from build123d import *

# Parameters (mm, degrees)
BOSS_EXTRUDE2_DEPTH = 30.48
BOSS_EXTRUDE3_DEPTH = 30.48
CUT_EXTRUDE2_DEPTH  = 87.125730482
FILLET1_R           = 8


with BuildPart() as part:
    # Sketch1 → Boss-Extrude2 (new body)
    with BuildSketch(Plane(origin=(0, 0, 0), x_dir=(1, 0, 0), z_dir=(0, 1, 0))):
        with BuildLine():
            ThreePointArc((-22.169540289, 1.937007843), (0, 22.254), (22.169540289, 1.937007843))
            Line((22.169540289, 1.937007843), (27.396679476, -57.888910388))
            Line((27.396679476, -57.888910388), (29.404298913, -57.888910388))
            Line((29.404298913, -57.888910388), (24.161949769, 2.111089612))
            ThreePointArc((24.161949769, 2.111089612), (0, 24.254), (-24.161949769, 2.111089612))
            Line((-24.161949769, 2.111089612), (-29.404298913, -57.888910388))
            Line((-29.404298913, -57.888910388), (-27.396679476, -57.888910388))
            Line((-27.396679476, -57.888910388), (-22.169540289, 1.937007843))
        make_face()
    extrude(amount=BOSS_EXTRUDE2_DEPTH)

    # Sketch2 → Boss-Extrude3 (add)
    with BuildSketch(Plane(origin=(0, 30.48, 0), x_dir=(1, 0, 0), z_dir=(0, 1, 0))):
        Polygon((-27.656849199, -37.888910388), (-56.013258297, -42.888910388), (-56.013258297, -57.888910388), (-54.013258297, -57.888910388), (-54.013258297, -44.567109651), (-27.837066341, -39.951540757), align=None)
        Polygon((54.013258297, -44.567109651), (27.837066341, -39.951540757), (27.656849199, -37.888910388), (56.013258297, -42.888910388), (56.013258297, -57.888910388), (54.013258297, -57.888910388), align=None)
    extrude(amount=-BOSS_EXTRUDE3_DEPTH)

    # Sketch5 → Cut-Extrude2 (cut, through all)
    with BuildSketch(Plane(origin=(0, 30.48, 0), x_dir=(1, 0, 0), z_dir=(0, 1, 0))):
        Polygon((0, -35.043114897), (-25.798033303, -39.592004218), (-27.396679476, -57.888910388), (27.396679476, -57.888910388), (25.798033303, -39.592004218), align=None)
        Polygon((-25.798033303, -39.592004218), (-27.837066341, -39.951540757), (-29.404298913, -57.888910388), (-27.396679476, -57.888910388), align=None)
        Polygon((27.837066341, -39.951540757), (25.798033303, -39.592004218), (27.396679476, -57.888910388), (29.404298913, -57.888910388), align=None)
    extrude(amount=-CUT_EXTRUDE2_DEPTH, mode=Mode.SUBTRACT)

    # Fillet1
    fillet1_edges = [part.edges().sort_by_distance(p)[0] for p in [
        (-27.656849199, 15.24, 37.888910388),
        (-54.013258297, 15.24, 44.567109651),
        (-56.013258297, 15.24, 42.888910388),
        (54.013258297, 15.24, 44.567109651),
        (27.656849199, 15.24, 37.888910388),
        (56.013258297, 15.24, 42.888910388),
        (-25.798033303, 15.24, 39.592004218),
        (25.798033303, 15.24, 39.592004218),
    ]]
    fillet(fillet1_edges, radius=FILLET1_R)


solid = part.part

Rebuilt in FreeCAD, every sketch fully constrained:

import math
import FreeCAD as App
import Part
import Sketcher

V = App.Vector
Q = App.Units.Quantity


def edges_at(feature, points):
    """Names of the edges that pass closest to the given points."""
    edges = feature.Shape.Edges
    near = lambda p: min(range(len(edges)), key=lambda i: edges[i].distToShape(Part.Vertex(*p))[0])
    return sorted({f"Edge{near(p) + 1}" for p in points})


def add_polygon(sketch, points):
    """Adds a closed chain of lines whose ends are joined by coincident constraints."""
    first, n = sketch.GeometryCount, len(points)
    for a, b in zip(points, points[1:] + points[:1]):
        sketch.addGeometry(Part.LineSegment(App.Vector(*a, 0), App.Vector(*b, 0)), False)
    for i in range(n):
        sketch.addConstraint(Sketcher.Constraint("Coincident", first + i, 2, first + (i + 1) % n, 1))

doc = App.newDocument("Part")
body = doc.addObject("PartDesign::Body", "Body")

sketch1 = body.newObject("Sketcher::SketchObject", "Sketch")
sketch1.AttachmentSupport = (doc.getObject("XZ_Plane"), [""])
sketch1.MapMode = "FlatFace"
sketch1.addGeometry([
    Part.ArcOfCircle(Part.Circle(V(0, 0, 0), V(0, 0, 1), 22.254), math.radians(-175.006606), math.radians(-4.993394)),
    Part.LineSegment(V(22.16954, -1.937008, 0), V(27.396679, 57.88891, 0)),
    Part.LineSegment(V(27.396679, 57.88891, 0), V(29.404299, 57.88891, 0)),
    Part.LineSegment(V(29.404299, 57.88891, 0), V(24.16195, -2.11109, 0)),
    Part.ArcOfCircle(Part.Circle(V(0, 0, 0), V(0, 0, 1), 24.254), math.radians(-175.006606), math.radians(-4.993394)),
    Part.LineSegment(V(-24.16195, -2.11109, 0), V(-29.404299, 57.88891, 0)),
    Part.LineSegment(V(-29.404299, 57.88891, 0), V(-27.396679, 57.88891, 0)),
    Part.LineSegment(V(-27.396679, 57.88891, 0), V(-22.16954, -1.937008, 0)),
], False)
sketch1.addConstraint([
    Sketcher.Constraint("Tangent", 0, 2, 1, 1),
    Sketcher.Constraint("Coincident", 1, 2, 2, 1),
    Sketcher.Constraint("Coincident", 2, 2, 3, 1),
    Sketcher.Constraint("Tangent", 3, 2, 4, 2),
    Sketcher.Constraint("Tangent", 4, 1, 5, 1),
    Sketcher.Constraint("Coincident", 5, 2, 6, 1),
    Sketcher.Constraint("Coincident", 6, 2, 7, 1),
    Sketcher.Constraint("Tangent", 7, 2, 0, 1),
    Sketcher.Constraint("Horizontal", 2),
    Sketcher.Constraint("Horizontal", 6),
    Sketcher.Constraint("Coincident", 0, 3, -1, 1),
    Sketcher.Constraint("Coincident", 4, 3, -1, 1),
    Sketcher.Constraint("Symmetric", 2, 2, 5, 2, -2),
    Sketcher.Constraint("Parallel", 1, 3),
    Sketcher.Constraint("Parallel", 5, 7),
    Sketcher.Constraint("Radius", 0, Q("22.254 mm")),
    Sketcher.Constraint("Radius", 4, Q("24.254 mm")),
    Sketcher.Constraint("DistanceY", 3, 2, 1, 2, Q("60 mm")),
    Sketcher.Constraint("DistanceX", -1, 1, 2, 2, Q("29.404299 mm")),
])
pad1 = body.newObject("PartDesign::Pad", "Pad")
pad1.Profile = sketch1
pad1.Length = 30.48
pad1.Reversed = True

sketch2 = body.newObject("Sketcher::SketchObject", "Sketch001")
sketch2.AttachmentSupport = (doc.getObject("XZ_Plane"), [""])
sketch2.MapMode = "FlatFace"
sketch2.AttachmentOffset = App.Placement(V(0, 0, -30.48), App.Rotation())
add_polygon(sketch2, [(-27.656849, 37.88891), (-56.013258, 42.88891), (-56.013258, 57.88891), (-54.013258, 57.88891), (-54.013258, 44.56711), (-27.837066, 39.951541)])
add_polygon(sketch2, [(27.837066, 39.951541), (54.013258, 44.56711), (54.013258, 57.88891), (56.013258, 57.88891), (56.013258, 42.88891), (27.656849, 37.88891)])
sketch2.addConstraint([
    Sketcher.Constraint("Vertical", 1),
    Sketcher.Constraint("Horizontal", 2),
    Sketcher.Constraint("Vertical", 3),
    Sketcher.Constraint("Vertical", 7),
    Sketcher.Constraint("Horizontal", 8),
    Sketcher.Constraint("Vertical", 9),
    Sketcher.Constraint("Symmetric", 3, 2, 6, 2, -2),
    Sketcher.Constraint("Symmetric", 1, 2, 8, 2, -2),
    Sketcher.Constraint("Symmetric", 5, 2, 10, 2, -2),
    Sketcher.Constraint("Symmetric", 4, 2, 11, 2, -2),
    Sketcher.Constraint("Parallel", 0, 4),
    Sketcher.Constraint("Parallel", 6, 10),
    Sketcher.Constraint("DistanceX", 2, 1, 2, 2, Q("2 mm")),
    Sketcher.Constraint("DistanceY", 1, 1, 1, 2, Q("15 mm")),
    Sketcher.Constraint("Angle", 0, Q("170 deg")),
    Sketcher.Constraint("DistanceY", 5, 2, 0, 2, Q("5 mm")),
    Sketcher.Constraint("Distance", 4, Q("26.580002 mm")),
    Sketcher.Constraint("DistanceY", 3, 2, 3, 1, Q("13.321801 mm")),
    Sketcher.Constraint("DistanceX", 5, 2, 10, 2, Q("55.313698 mm")),
    Sketcher.Constraint("DistanceY", -1, 1, 0, 2, Q("42.88891 mm")),
])
pad2 = body.newObject("PartDesign::Pad", "Pad001")
pad2.Profile = sketch2
pad2.Length = 30.48

sketch3 = body.newObject("Sketcher::SketchObject", "Sketch002")
sketch3.AttachmentSupport = (doc.getObject("XZ_Plane"), [""])
sketch3.MapMode = "FlatFace"
sketch3.AttachmentOffset = App.Placement(V(0, 0, -30.48), App.Rotation())
add_polygon(sketch3, [(0, 35.043115), (-25.798033, 39.592004), (-27.837066, 39.951541), (-29.404299, 57.88891), (29.404299, 57.88891), (27.837066, 39.951541), (25.798033, 39.592004)])
sketch3.addConstraint([
    Sketcher.Constraint("Horizontal", 3),
    Sketcher.Constraint("Symmetric", 1, 2, 4, 2, -2),
    Sketcher.Constraint("Symmetric", 0, 2, 5, 2, -2),
    Sketcher.Constraint("PointOnObject", 6, 2, -2),
    Sketcher.Constraint("Parallel", 0, 1),
    Sketcher.Constraint("Equal", 2, 4),
    Sketcher.Constraint("Angle", 0, Q("170 deg")),
    Sketcher.Constraint("DistanceX", 2, 2, -1, 1, Q("29.404299 mm")),
    Sketcher.Constraint("DistanceX", 0, 2, 4, 2, Q("53.6351 mm")),
    Sketcher.Constraint("Distance", 0, Q("26.19601 mm")),
    Sketcher.Constraint("DistanceY", -1, 1, 1, 2, Q("39.951541 mm")),
    Sketcher.Constraint("DistanceY", -1, 1, 2, 2, Q("57.88891 mm")),
])
pocket1 = body.newObject("PartDesign::Pocket", "Pocket")
pocket1.Profile = sketch3
pocket1.Type = "ThroughAll"
pocket1.Reversed = True
doc.recompute()

fillet = body.newObject("PartDesign::Fillet", "Fillet")
fillet.Base = (pocket1, edges_at(pocket1, [
    (-27.657, 15.24, 37.889),
    (-54.013, 15.24, 44.567),
    (-56.013, 15.24, 42.889),
    (54.013, 15.24, 44.567),
    (27.657, 15.24, 37.889),
    (56.013, 15.24, 42.889),
    (-25.798, 15.24, 39.592),
    (25.798, 15.24, 39.592),
]))
fillet.Radius = 8

doc.recompute()
